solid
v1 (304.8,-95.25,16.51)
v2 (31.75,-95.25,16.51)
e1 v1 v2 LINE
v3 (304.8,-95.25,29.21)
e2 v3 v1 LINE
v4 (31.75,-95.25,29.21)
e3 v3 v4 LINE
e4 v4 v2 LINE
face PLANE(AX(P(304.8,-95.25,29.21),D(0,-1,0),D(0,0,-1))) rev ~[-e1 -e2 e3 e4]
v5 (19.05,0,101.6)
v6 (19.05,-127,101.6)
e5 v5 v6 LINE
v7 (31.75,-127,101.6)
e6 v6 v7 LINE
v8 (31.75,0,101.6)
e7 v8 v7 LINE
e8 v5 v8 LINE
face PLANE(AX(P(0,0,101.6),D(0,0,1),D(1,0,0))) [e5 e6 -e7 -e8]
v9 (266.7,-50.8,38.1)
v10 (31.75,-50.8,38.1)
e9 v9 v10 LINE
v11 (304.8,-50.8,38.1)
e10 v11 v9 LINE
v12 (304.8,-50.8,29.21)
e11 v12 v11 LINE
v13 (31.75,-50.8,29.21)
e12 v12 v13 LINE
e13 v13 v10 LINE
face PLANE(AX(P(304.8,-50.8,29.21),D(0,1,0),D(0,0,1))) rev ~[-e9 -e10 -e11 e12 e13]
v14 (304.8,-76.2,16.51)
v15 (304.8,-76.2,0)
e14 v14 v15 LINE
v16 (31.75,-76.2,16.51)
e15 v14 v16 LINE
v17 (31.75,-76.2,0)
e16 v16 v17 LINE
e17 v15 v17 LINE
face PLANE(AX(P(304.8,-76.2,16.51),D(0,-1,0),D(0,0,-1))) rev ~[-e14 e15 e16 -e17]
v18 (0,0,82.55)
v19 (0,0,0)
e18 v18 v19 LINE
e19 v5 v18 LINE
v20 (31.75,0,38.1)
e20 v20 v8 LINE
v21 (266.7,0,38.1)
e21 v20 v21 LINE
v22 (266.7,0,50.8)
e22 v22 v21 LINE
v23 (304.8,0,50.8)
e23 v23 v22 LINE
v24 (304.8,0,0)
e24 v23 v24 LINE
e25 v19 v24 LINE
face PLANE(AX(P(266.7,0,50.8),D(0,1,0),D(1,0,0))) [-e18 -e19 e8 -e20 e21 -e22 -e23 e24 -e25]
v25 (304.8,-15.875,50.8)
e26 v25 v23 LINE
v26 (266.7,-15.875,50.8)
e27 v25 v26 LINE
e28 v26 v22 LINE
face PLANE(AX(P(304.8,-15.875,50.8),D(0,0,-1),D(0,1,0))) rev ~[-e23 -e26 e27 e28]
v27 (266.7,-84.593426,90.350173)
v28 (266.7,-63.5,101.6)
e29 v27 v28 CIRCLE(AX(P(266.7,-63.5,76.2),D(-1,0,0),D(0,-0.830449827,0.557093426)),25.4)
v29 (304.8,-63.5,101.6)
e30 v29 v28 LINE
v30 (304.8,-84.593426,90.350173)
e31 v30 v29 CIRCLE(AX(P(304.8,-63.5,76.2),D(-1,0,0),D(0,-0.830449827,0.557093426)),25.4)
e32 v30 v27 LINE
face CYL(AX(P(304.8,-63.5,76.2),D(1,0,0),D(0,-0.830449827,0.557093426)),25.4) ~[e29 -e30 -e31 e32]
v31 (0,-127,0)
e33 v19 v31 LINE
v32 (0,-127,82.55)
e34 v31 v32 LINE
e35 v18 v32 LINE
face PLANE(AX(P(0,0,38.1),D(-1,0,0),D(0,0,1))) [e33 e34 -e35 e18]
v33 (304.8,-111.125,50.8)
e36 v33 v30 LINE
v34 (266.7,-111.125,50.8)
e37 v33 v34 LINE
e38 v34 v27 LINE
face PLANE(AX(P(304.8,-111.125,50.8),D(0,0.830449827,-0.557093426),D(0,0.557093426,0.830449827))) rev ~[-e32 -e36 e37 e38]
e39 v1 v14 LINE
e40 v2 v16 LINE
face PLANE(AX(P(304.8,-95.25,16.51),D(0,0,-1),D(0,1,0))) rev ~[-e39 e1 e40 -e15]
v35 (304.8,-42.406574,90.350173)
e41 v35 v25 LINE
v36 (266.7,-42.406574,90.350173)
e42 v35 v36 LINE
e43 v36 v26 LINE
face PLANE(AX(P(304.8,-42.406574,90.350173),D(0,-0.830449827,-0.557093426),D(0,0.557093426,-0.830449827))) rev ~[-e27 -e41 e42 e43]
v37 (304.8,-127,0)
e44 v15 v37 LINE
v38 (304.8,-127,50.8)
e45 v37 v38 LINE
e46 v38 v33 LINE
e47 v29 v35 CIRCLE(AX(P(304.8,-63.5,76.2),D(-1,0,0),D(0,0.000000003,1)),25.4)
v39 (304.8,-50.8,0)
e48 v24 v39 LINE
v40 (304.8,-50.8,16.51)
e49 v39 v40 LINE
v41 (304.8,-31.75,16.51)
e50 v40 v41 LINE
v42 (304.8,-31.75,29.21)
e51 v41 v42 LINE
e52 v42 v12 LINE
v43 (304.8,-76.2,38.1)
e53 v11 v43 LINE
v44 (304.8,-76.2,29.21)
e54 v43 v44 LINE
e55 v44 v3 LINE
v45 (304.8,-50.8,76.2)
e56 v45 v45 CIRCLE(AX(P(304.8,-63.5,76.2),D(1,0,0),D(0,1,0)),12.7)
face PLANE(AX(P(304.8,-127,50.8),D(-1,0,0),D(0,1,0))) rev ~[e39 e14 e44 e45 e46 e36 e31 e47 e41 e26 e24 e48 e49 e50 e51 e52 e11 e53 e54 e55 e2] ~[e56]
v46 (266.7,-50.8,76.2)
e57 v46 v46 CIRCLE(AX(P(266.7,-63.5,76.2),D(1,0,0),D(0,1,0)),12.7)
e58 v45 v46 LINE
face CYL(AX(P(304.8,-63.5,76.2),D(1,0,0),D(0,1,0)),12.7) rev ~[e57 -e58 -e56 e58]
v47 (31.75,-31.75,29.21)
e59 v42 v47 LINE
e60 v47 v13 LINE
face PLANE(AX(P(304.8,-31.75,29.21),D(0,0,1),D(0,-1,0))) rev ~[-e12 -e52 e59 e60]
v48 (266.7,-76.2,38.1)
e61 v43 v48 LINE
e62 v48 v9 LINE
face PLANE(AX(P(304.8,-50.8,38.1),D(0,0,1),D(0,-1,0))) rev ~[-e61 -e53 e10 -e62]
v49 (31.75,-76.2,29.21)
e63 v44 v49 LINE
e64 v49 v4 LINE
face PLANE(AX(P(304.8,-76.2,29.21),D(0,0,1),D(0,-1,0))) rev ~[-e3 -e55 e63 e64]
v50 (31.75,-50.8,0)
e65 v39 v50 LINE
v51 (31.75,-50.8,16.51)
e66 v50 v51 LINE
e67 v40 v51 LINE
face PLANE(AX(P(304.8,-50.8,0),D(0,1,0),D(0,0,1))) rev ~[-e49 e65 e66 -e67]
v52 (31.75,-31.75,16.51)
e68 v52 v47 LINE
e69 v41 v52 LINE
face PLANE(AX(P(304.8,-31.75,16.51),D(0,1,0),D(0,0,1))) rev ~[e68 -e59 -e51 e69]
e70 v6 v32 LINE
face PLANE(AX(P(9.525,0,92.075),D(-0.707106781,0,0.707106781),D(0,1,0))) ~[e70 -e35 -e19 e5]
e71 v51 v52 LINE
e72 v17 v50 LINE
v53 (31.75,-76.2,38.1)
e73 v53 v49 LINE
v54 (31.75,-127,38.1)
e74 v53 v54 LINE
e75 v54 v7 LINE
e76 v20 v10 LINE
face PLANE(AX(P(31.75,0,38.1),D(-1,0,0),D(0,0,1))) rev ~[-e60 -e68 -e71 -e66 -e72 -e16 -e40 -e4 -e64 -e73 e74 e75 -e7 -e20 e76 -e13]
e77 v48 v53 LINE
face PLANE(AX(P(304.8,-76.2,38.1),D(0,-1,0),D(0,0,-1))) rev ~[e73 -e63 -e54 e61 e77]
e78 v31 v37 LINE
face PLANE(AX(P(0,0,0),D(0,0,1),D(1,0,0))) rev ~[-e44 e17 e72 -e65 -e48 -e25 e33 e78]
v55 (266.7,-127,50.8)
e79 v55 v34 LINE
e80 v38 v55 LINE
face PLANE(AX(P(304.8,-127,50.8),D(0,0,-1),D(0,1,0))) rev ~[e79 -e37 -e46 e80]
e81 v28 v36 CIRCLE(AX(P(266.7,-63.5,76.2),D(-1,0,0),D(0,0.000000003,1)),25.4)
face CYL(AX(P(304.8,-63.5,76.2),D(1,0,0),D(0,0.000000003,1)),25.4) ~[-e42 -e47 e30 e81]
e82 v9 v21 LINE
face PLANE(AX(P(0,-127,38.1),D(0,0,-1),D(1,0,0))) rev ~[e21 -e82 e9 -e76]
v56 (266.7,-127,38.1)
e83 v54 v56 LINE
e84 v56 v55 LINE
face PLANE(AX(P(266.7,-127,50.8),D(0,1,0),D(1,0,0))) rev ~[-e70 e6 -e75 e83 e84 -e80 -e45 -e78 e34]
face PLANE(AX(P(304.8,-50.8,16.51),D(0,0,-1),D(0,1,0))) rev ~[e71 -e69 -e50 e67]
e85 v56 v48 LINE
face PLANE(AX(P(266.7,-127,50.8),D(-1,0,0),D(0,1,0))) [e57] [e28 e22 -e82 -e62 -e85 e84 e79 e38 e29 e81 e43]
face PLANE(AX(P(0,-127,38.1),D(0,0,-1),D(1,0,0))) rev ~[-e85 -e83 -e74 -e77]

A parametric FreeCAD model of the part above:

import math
import FreeCAD as App
import Part
import Sketcher

V = App.Vector
Q = App.Units.Quantity


def edges_at(feature, points):
    """Names of the edges that pass closest to the given points."""
    edges = feature.Shape.Edges
    near = lambda p: min(range(len(edges)), key=lambda i: edges[i].distToShape(Part.Vertex(*p))[0])
    return sorted({f"Edge{near(p) + 1}" for p in points})


def add_polygon(sketch, points):
    """Adds a closed chain of lines whose ends are joined by coincident constraints."""
    first, n = sketch.GeometryCount, len(points)
    for a, b in zip(points, points[1:] + points[:1]):
        sketch.addGeometry(Part.LineSegment(App.Vector(*a, 0), App.Vector(*b, 0)), False)
    for i in range(n):
        sketch.addConstraint(Sketcher.Constraint("Coincident", first + i, 2, first + (i + 1) % n, 1))

doc = App.newDocument("Part")
body = doc.addObject("PartDesign::Body", "Body")

sketch1 = body.newObject("Sketcher::SketchObject", "Sketch")
sketch1.AttachmentSupport = (doc.getObject("XZ_Plane"), [""])
sketch1.MapMode = "FlatFace"
add_polygon(sketch1, [(0, 51), (0, 0), (305, 0), (305, 51)])
sketch1.addConstraint(Sketcher.Constraint("Vertical", 0))
sketch1.addConstraint(Sketcher.Constraint("Horizontal", 1))
sketch1.addConstraint(Sketcher.Constraint("Vertical", 2))
sketch1.addConstraint(Sketcher.Constraint("Horizontal", 3))
sketch1.addConstraint(Sketcher.Constraint("Coincident", 0, 2, -1, 1))
sketch1.addConstraint(Sketcher.Constraint("DistanceX", 1, 1, 1, 2, Q("12 in")))
sketch1.addConstraint(Sketcher.Constraint("DistanceY", 0, 2, 0, 1, Q("2 in")))
pad1 = body.newObject("PartDesign::Pad", "Pad")
pad1.Profile = sketch1
pad1.Length = Q("5 in")

sketch2 = body.newObject("Sketcher::SketchObject", "Sketch001")
sketch2.AttachmentSupport = (doc.getObject("YZ_Plane"), [""])
sketch2.MapMode = "FlatFace"
sketch2.AttachmentOffset = App.Placement(V(0, 0, 12 * 25.4), App.Rotation())
add_polygon(sketch2, [(-76, 0), (-51, 0), (-51, 17), (-32, 17), (-32, 29), (-51, 29), (-51, 38), (-76, 38), (-76, 29), (-95, 29), (-95, 17), (-76, 17)])
sketch2.addConstraint(Sketcher.Constraint("Horizontal", 0))
sketch2.addConstraint(Sketcher.Constraint("Vertical", 1))
sketch2.addConstraint(Sketcher.Constraint("Horizontal", 2))
sketch2.addConstraint(Sketcher.Constraint("Vertical", 3))
sketch2.addConstraint(Sketcher.Constraint("Horizontal", 4))
sketch2.addConstraint(Sketcher.Constraint("Vertical", 5))
sketch2.addConstraint(Sketcher.Constraint("Horizontal", 6))
sketch2.addConstraint(Sketcher.Constraint("Vertical", 7))
sketch2.addConstraint(Sketcher.Constraint("Horizontal", 8))
sketch2.addConstraint(Sketcher.Constraint("Vertical", 9))
sketch2.addConstraint(Sketcher.Constraint("Horizontal", 10))
sketch2.addConstraint(Sketcher.Constraint("Vertical", 11))
sketch2.addConstraint(Sketcher.Constraint("PointOnObject", 0, 2, -1))
sketch2.addConstraint(Sketcher.Constraint("Horizontal", 4, 2, 7, 2))
sketch2.addConstraint(Sketcher.Constraint("Horizontal", 2, 2, 9, 2))
sketch2.addConstraint(Sketcher.Constraint("Vertical", 1, 2, 4, 2))
sketch2.addConstraint(Sketcher.Constraint("Vertical", 7, 2, 10, 2))
sketch2.addConstraint(Sketcher.Constraint("Equal", 4, 8))
sketch2.addConstraint(Sketcher.Constraint("DistanceX", 0, 1, 0, 2, Q("1 in")))
sketch2.addConstraint(Sketcher.Constraint("DistanceY", 3, 1, 3, 2, Q("0.5 in")))
sketch2.addConstraint(Sketcher.Constraint("DistanceX", 0, 2, -1, 1, Q("2 in")))
sketch2.addConstraint(Sketcher.Constraint("DistanceX", 2, 1, 2, 2, Q("0.75 in")))
sketch2.addConstraint(Sketcher.Constraint("DistanceY", 1, 1, 1, 2, Q("0.65 in")))
sketch2.addConstraint(Sketcher.Constraint("DistanceY", 5, 1, 5, 2, Q("0.35 in")))
pocket1 = body.newObject("PartDesign::Pocket", "Pocket")
pocket1.Profile = sketch2
pocket1.Length = Q("10.75 in")

sketch3 = body.newObject("Sketcher::SketchObject", "Sketch002")
sketch3.AttachmentSupport = (doc.getObject("XZ_Plane"), [""])
sketch3.MapMode = "FlatFace"
sketch3.AttachmentOffset = App.Placement(V(0, 0, 5 * 25.4), App.Rotation())
add_polygon(sketch3, [(0, 51), (0, 38), (267, 38), (267, 51)])
sketch3.addConstraint(Sketcher.Constraint("Vertical", 0))
sketch3.addConstraint(Sketcher.Constraint("Horizontal", 1))
sketch3.addConstraint(Sketcher.Constraint("Vertical", 2))
sketch3.addConstraint(Sketcher.Constraint("Horizontal", 3))
sketch3.addConstraint(Sketcher.Constraint("PointOnObject", 0, 2, -2))
sketch3.addConstraint(Sketcher.Constraint("DistanceX", 1, 1, 1, 2, Q("10.5 in")))
sketch3.addConstraint(Sketcher.Constraint("DistanceY", 0, 2, 0, 1, Q("0.5 in")))
sketch3.addConstraint(Sketcher.Constraint("DistanceY", -1, 1, 2, 2, Q("2 in")))
pocket2 = body.newObject("PartDesign::Pocket", "Pocket001")
pocket2.Profile = sketch3
pocket2.Type = "ThroughAll"

sketch4 = body.newObject("Sketcher::SketchObject", "Sketch003")
sketch4.AttachmentSupport = (doc.getObject("XZ_Plane"), [""])
sketch4.MapMode = "FlatFace"
add_polygon(sketch4, [(0, 102), (0, 38), (32, 38), (32, 102)])
sketch4.addConstraint(Sketcher.Constraint("Vertical", 0))
sketch4.addConstraint(Sketcher.Constraint("Horizontal", 1))
sketch4.addConstraint(Sketcher.Constraint("Vertical", 2))
sketch4.addConstraint(Sketcher.Constraint("Horizontal", 3))
sketch4.addConstraint(Sketcher.Constraint("PointOnObject", 0, 2, -2))
sketch4.addConstraint(Sketcher.Constraint("DistanceY", 0, 2, 0, 1, Q("2.5 in")))
sketch4.addConstraint(Sketcher.Constraint("DistanceY", -1, 1, 2, 2, Q("4 in")))
sketch4.addConstraint(Sketcher.Constraint("DistanceX", 1, 1, 1, 2, Q("1.25 in")))
pad2 = body.newObject("PartDesign::Pad", "Pad001")
pad2.Profile = sketch4
pad2.Length = Q("5 in")

sketch5 = body.newObject("Sketcher::SketchObject", "Sketch004")
sketch5.AttachmentSupport = (doc.getObject("XY_Plane"), [""])
sketch5.MapMode = "FlatFace"
sketch5.AttachmentOffset = App.Placement(V(0, 0, 2 * 25.4), App.Rotation())
add_polygon(sketch5, [(267, 0), (267, -127), (305, -127), (305, 0)])
sketch5.addConstraint(Sketcher.Constraint("Vertical", 0))
sketch5.addConstraint(Sketcher.Constraint("Horizontal", 1))
sketch5.addConstraint(Sketcher.Constraint("Vertical", 2))
sketch5.addConstraint(Sketcher.Constraint("Horizontal", 3))
sketch5.addConstraint(Sketcher.Constraint("PointOnObject", 2, 2, -1))
sketch5.addConstraint(Sketcher.Constraint("DistanceY", 0, 2, 0, 1, Q("5 in")))
sketch5.addConstraint(Sketcher.Constraint("DistanceX", 1, 1, 1, 2, Q("1.5 in")))
sketch5.addConstraint(Sketcher.Constraint("DistanceX", -1, 1, 1, 2, Q("12 in")))
pad3 = body.newObject("PartDesign::Pad", "Pad002")
pad3.Profile = sketch5
pad3.Length = Q("2 in")

sketch6 = body.newObject("Sketcher::SketchObject", "Sketch005")
sketch6.AttachmentSupport = (doc.getObject("YZ_Plane"), [""])
sketch6.MapMode = "FlatFace"
sketch6.AttachmentOffset = App.Placement(V(0, 0, 12 * 25.4), App.Rotation())
sketch6.addGeometry(Part.Circle(V(-64, 76, 0), V(0, 0, 1), 13), False)
sketch6.addGeometry(Part.LineSegment(V(-127, 102, 0), V(-127, 51, 0)), False)
sketch6.addGeometry(Part.LineSegment(V(-127, 51, 0), V(-111, 51, 0)), False)
sketch6.addGeometry(Part.LineSegment(V(-111, 51, 0), V(-85, 90, 0)), False)
sketch6.addGeometry(Part.ArcOfCircle(Part.Circle(V(-64, 76, 0), V(0, 0, 1), 25), math.radians(90), math.radians(146)), False)
sketch6.addGeometry(Part.LineSegment(V(-63, 102, 0), V(-127, 102, 0)), False)
sketch6.addGeometry(Part.LineSegment(V(0, 102, 0), V(-63, 102, 0)), False)
sketch6.addGeometry(Part.ArcOfCircle(Part.Circle(V(-64, 76, 0), V(0, 0, 1), 25), math.radians(34), math.radians(90)), False)
sketch6.addGeometry(Part.LineSegment(V(-42, 90, 0), V(-16, 51, 0)), False)
sketch6.addGeometry(Part.LineSegment(V(-16, 51, 0), V(0, 51, 0)), False)
sketch6.addGeometry(Part.LineSegment(V(0, 51, 0), V(0, 102, 0)), False)
sketch6.addConstraint(Sketcher.Constraint("Coincident", 1, 2, 2, 1))
sketch6.addConstraint(Sketcher.Constraint("Coincident", 2, 2, 3, 1))
sketch6.addConstraint(Sketcher.Constraint("Tangent", 3, 2, 4, 2))
sketch6.addConstraint(Sketcher.Constraint("Tangent", 4, 1, 5, 1))
sketch6.addConstraint(Sketcher.Constraint("Coincident", 5, 2, 1, 1))
sketch6.addConstraint(Sketcher.Constraint("Tangent", 6, 2, 7, 2))
sketch6.addConstraint(Sketcher.Constraint("Tangent", 7, 1, 8, 1))
sketch6.addConstraint(Sketcher.Constraint("Coincident", 8, 2, 9, 1))
sketch6.addConstraint(Sketcher.Constraint("Coincident", 9, 2, 10, 1))
sketch6.addConstraint(Sketcher.Constraint("Coincident", 10, 2, 6, 1))
sketch6.addConstraint(Sketcher.Constraint("Vertical", 1))
sketch6.addConstraint(Sketcher.Constraint("Horizontal", 2))
sketch6.addConstraint(Sketcher.Constraint("Horizontal", 5))
sketch6.addConstraint(Sketcher.Constraint("Horizontal", 6))
sketch6.addConstraint(Sketcher.Constraint("Horizontal", 9))
sketch6.addConstraint(Sketcher.Constraint("Vertical", 10))
sketch6.addConstraint(Sketcher.Constraint("Coincident", 4, 3, 0, 3))
sketch6.addConstraint(Sketcher.Constraint("Coincident", 7, 3, 0, 3))
sketch6.addConstraint(Sketcher.Constraint("Equal", 4, 7))
sketch6.addConstraint(Sketcher.Constraint("PointOnObject", 9, 2, -2))
sketch6.addConstraint(Sketcher.Constraint("Horizontal", 3, 2, 7, 1))
sketch6.addConstraint(Sketcher.Constraint("Horizontal", 2, 2, 8, 2))
sketch6.addConstraint(Sketcher.Constraint("Equal", 5, 6))
sketch6.addConstraint(Sketcher.Constraint("Diameter", 0, Q("1 in")))
sketch6.addConstraint(Sketcher.Constraint("Radius", 4, Q("1 in")))
sketch6.addConstraint(Sketcher.Constraint("DistanceY", 1, 2, 1, 1, Q("2 in")))
sketch6.addConstraint(Sketcher.Constraint("DistanceX", 5, 2, 5, 1, Q("2.5 in")))
sketch6.addConstraint(Sketcher.Constraint("DistanceY", -1, 1, 0, 3, Q("3 in")))
sketch6.addConstraint(Sketcher.Constraint("DistanceX", 2, 1, 2, 2, Q("0.625 in")))
pocket3 = body.newObject("PartDesign::Pocket", "Pocket002")
pocket3.Profile = sketch6
pocket3.Length = Q("1.5 in")
doc.recompute()

chamfer = body.newObject("PartDesign::Chamfer", "Chamfer")
chamfer.Base = (pocket3, edges_at(pocket3, [(0, -63.5, 101.6)]))
chamfer.Size = Q("0.75 in")

doc.recompute()
